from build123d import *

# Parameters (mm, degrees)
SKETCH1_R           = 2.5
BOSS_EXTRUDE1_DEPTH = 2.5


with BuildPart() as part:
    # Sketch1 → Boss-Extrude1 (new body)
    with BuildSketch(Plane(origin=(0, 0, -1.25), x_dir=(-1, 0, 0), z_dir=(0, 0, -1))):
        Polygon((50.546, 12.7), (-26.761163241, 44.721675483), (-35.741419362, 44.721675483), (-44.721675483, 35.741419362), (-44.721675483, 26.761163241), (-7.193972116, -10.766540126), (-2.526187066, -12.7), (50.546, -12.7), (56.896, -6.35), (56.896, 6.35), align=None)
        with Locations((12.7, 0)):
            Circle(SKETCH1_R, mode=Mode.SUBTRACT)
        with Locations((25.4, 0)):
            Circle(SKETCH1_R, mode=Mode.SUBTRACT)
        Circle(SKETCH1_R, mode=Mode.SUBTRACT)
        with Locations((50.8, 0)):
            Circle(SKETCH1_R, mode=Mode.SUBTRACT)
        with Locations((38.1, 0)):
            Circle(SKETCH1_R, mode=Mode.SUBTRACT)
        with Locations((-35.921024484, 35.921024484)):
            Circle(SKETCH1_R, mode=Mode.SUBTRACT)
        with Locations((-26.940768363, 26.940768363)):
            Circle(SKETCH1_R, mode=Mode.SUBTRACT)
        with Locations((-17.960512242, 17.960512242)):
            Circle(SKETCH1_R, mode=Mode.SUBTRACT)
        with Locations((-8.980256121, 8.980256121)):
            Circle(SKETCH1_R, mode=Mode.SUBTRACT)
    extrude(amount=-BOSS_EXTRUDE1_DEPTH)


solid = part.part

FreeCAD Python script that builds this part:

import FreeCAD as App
import Part
import Sketcher
Q = App.Units.Quantity


def add_polygon(sketch, points):
    """Adds a closed chain of lines whose ends are joined by coincident constraints."""
    first, n = sketch.GeometryCount, len(points)
    for a, b in zip(points, points[1:] + points[:1]):
        sketch.addGeometry(Part.LineSegment(App.Vector(*a, 0), App.Vector(*b, 0)), False)
    for i in range(n):
        sketch.addConstraint(Sketcher.Constraint("Coincident", first + i, 2, first + (i + 1) % n, 1))

doc = App.newDocument("Part")
body = doc.addObject("PartDesign::Body", "Body")

# Sketch on XY plane
sketch1 = doc.addObject("Sketcher::SketchObject", "Sketch")
body.addObject(sketch1)
sketch1.AttachmentSupport = (doc.XY_Plane, [""])
sketch1.MapMode = "FlatFace"
sketch1.AttachmentOffset = App.Placement(App.Vector(0, 0, -1.25), App.Rotation())
add_polygon(sketch1, [(-50.546, 12.7), (26.761163, 44.721675), (35.741419, 44.721675), (44.721675, 35.741419), (44.721675, 26.761163), (7.193972, -10.76654), (2.526187, -12.7), (-50.546, -12.7), (-56.896, -6.35), (-56.896, 6.35)])  # lines 0-9
sketch1.addGeometry(Part.Circle(App.Vector(0, 0, 0), App.Vector(0, 0, 1), 2.5), False)  # 10
sketch1.addGeometry(Part.Circle(App.Vector(8.980256, 8.980256, 0), App.Vector(0, 0, 1), 2.5), False)  # 11
sketch1.addGeometry(Part.Circle(App.Vector(-12.7, 0, 0), App.Vector(0, 0, 1), 2.5), False)  # 12
sketch1.addGeometry(Part.Circle(App.Vector(-25.4, 0, 0), App.Vector(0, 0, 1), 2.5), False)  # 13
sketch1.addGeometry(Part.Circle(App.Vector(-38.1, 0, 0), App.Vector(0, 0, 1), 2.5), False)  # 14
sketch1.addGeometry(Part.Circle(App.Vector(-50.8, 0, 0), App.Vector(0, 0, 1), 2.5), False)  # 15
sketch1.addGeometry(Part.Circle(App.Vector(17.960512, 17.960512, 0), App.Vector(0, 0, 1), 2.5), False)  # 16
sketch1.addGeometry(Part.Circle(App.Vector(26.940768, 26.940768, 0), App.Vector(0, 0, 1), 2.5), False)  # 17
sketch1.addGeometry(Part.Circle(App.Vector(35.921024, 35.921024, 0), App.Vector(0, 0, 1), 2.5), False)  # 18
sketch1.addConstraint([
    Sketcher.Constraint("Horizontal", 1),
    Sketcher.Constraint("Vertical", 3),
    Sketcher.Constraint("Horizontal", 6),
    Sketcher.Constraint("Vertical", 8),
    Sketcher.Constraint("Coincident", 10, 3, -1, 1),
    Sketcher.Constraint("Equal", 10, 11),
    Sketcher.Constraint("Equal", 11, 12),
    Sketcher.Constraint("Equal", 12, 13),
    Sketcher.Constraint("Equal", 13, 14),
    Sketcher.Constraint("Equal", 14, 15),
    Sketcher.Constraint("Equal", 15, 16),
    Sketcher.Constraint("Equal", 16, 17),
    Sketcher.Constraint("Equal", 17, 18),
    Sketcher.Constraint("Symmetric", 6, 2, 9, 2, -1),
    Sketcher.Constraint("PointOnObject", 12, 3, -1),
    Sketcher.Constraint("PointOnObject", 13, 3, -1),
    Sketcher.Constraint("PointOnObject", 14, 3, -1),
    Sketcher.Constraint("PointOnObject", 15, 3, -1),
    Sketcher.Constraint("Perpendicular", 2, 4),
    Sketcher.Constraint("Parallel", 0, 5),
    Sketcher.Constraint("Perpendicular", 4, 7),
    Sketcher.Constraint("Perpendicular", 7, 9),
    Sketcher.Constraint("Equal", 1, 3),
    Sketcher.Constraint("Equal", 7, 9),
    Sketcher.Constraint("Diameter", 10, 5.0),
    Sketcher.Constraint("DistanceY", 8, 1, 8, 2, 12.7),
    Sketcher.Constraint("Angle", 0, Q("22.5 deg")),
    Sketcher.Constraint("Distance", 2, 12.7),
    Sketcher.Constraint("DistanceX", 12, 3, -1, 1, 12.7),
    Sketcher.Constraint("DistanceX", 13, 3, -1, 1, 25.4),
    Sketcher.Constraint("DistanceX", 14, 3, -1, 1, 38.1),
    Sketcher.Constraint("DistanceX", 15, 3, -1, 1, 50.8),
    Sketcher.Constraint("DistanceY", 5, 2, -1, 1, 12.7),
    Sketcher.Constraint("DistanceX", 6, 2, -1, 1, 50.546),
    Sketcher.Constraint("Distance", 0, 83.676671),
    Sketcher.Constraint("DistanceX", 1, 1, 1, 2, 8.980256),
    Sketcher.Constraint("DistanceX", 6, 2, 6, 1, 53.072187),
    Sketcher.Constraint("DistanceX", -1, 1, 17, 3, 26.940768),
    Sketcher.Constraint("DistanceY", -1, 1, 17, 3, 26.940768),
    Sketcher.Constraint("DistanceX", 11, 3, 18, 3, 26.940768),
    Sketcher.Constraint("DistanceY", 11, 3, 18, 3, 26.940768),
    Sketcher.Constraint("DistanceX", 0, 2, 18, 3, 9.159861),
    Sketcher.Constraint("DistanceY", 18, 3, 0, 2, 8.800651),
    Sketcher.Constraint("DistanceX", 16, 3, 0, 2, 8.800651),
    Sketcher.Constraint("DistanceY", -1, 1, 16, 3, 17.960512),
])
pad1 = doc.addObject("PartDesign::Pad", "Pad")
body.addObject(pad1)
pad1.Profile = sketch1
pad1.Length = 2.5

doc.recompute()
